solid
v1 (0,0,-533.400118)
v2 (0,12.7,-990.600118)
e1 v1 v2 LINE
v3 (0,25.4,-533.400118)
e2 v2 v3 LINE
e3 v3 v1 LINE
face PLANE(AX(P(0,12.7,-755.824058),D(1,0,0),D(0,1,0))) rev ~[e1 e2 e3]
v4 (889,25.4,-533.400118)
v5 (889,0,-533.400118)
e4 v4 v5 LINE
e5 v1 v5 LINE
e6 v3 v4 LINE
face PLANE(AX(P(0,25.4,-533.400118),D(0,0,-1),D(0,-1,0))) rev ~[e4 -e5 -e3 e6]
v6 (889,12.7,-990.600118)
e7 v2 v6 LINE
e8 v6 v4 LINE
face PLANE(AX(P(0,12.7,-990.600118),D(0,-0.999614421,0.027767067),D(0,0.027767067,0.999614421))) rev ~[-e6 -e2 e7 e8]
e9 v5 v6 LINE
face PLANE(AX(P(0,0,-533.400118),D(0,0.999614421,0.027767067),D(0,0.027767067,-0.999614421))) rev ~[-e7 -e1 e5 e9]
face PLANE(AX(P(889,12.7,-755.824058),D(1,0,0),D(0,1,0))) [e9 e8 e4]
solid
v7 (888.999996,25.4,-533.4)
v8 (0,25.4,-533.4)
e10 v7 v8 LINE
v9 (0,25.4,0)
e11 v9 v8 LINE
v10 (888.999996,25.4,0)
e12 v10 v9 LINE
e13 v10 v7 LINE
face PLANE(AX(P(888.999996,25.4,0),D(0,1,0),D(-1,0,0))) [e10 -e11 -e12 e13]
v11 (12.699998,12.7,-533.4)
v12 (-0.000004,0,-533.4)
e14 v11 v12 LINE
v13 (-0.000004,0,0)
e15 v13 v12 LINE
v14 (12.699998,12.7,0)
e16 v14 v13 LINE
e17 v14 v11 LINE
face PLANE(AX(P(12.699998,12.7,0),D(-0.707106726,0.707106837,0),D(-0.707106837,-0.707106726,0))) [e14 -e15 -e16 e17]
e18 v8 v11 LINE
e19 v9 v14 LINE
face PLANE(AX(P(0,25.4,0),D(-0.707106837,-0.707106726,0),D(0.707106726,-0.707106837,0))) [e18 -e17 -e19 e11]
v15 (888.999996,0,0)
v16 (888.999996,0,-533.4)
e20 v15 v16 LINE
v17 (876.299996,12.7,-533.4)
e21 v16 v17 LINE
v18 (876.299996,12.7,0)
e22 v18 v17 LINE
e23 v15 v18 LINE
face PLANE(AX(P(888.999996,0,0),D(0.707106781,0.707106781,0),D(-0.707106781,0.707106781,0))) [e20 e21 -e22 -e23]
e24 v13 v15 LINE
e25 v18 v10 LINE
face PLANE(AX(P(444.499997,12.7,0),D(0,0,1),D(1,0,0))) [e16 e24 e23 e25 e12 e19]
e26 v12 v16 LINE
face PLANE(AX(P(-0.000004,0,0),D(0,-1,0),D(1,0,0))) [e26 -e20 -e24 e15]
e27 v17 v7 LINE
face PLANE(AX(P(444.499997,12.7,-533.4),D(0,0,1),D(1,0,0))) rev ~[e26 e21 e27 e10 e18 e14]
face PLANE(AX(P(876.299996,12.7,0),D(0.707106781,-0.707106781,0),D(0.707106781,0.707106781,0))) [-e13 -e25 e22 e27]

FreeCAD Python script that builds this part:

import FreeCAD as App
import Part
import Sketcher

V = App.Vector
Q = App.Units.Quantity

doc = App.newDocument("Part")
body = doc.addObject("PartDesign::Body", "Body")

# Sketch on XY plane
sketch1 = doc.addObject("Sketcher::SketchObject", "Sketch")
body.addObject(sketch1)
sketch1.AttachmentSupport = (doc.XY_Plane, [""])
sketch1.MapMode = "FlatFace"
sketch1.addGeometry(Part.LineSegment(V(0, 25.4, 0), V(12.699998, 12.7, 0)), False)
sketch1.addGeometry(Part.LineSegment(V(12.699998, 12.7, 0), V(-0.000004, 0, 0)), False)
sketch1.addGeometry(Part.LineSegment(V(-0.000004, 0, 0), V(888.999996, 0, 0)), False)
sketch1.addGeometry(Part.LineSegment(V(888.999996, 0, 0), V(876.299996, 12.7, 0)), False)
sketch1.addGeometry(Part.LineSegment(V(876.299996, 12.7, 0), V(888.999996, 25.4, 0)), False)
sketch1.addGeometry(Part.LineSegment(V(888.999996, 25.4, 0), V(0, 25.4, 0)), False)
sketch1.addConstraint(Sketcher.Constraint("Coincident", 0, 2, 1, 1))
sketch1.addConstraint(Sketcher.Constraint("Coincident", 1, 2, 2, 1))
sketch1.addConstraint(Sketcher.Constraint("Coincident", 2, 2, 3, 1))
sketch1.addConstraint(Sketcher.Constraint("Coincident", 3, 2, 4, 1))
sketch1.addConstraint(Sketcher.Constraint("Coincident", 4, 2, 5, 1))
sketch1.addConstraint(Sketcher.Constraint("Coincident", 5, 2, 0, 1))
sketch1.addConstraint(Sketcher.Constraint("Horizontal", 2))
sketch1.addConstraint(Sketcher.Constraint("Horizontal", 5))
sketch1.addConstraint(Sketcher.Constraint("Coincident", 1, 2, -1, 1))
sketch1.addConstraint(Sketcher.Constraint("PointOnObject", 5, 2, -2))
sketch1.addConstraint(Sketcher.Constraint("Perpendicular", 0, 1))
sketch1.addConstraint(Sketcher.Constraint("Perpendicular", 1, 3))
sketch1.addConstraint(Sketcher.Constraint("Perpendicular", 3, 4))
sketch1.addConstraint(Sketcher.Constraint("Horizontal", 0, 2, 3, 2))
sketch1.addConstraint(Sketcher.Constraint("Vertical", 2, 2, 4, 2))
sketch1.addConstraint(Sketcher.Constraint("DistanceX", 2, 1, 2, 2, Q("35 in")))
sketch1.addConstraint(Sketcher.Constraint("DistanceY", -1, 1, 4, 2, Q("1 in")))
pad1 = doc.addObject("PartDesign::Pad", "Pad")
body.addObject(pad1)
pad1.Profile = sketch1
pad1.Length = Q("21 in")
pad1.Reversed = True
body2 = doc.addObject("PartDesign::Body", "Body001")

# Sketch on YZ plane
sketch2 = doc.addObject("Sketcher::SketchObject", "Sketch001")
body2.addObject(sketch2)
sketch2.AttachmentSupport = (doc.getObject("YZ_Plane001"), [""])
sketch2.MapMode = "FlatFace"
sketch2.addGeometry(Part.LineSegment(V(25.4, -533.400118, 0), V(0, -533.400118, 0)), False)
sketch2.addGeometry(Part.LineSegment(V(0, -533.400118, 0), V(12.7, -990.600118, 0)), False)
sketch2.addGeometry(Part.LineSegment(V(12.7, -990.600118, 0), V(25.4, -533.400118, 0)), False)
sketch2.addConstraint(Sketcher.Constraint("Coincident", 0, 2, 1, 1))
sketch2.addConstraint(Sketcher.Constraint("Coincident", 1, 2, 2, 1))
sketch2.addConstraint(Sketcher.Constraint("Coincident", 2, 2, 0, 1))
sketch2.addConstraint(Sketcher.Constraint("Horizontal", 0))
sketch2.addConstraint(Sketcher.Constraint("PointOnObject", 0, 2, -2))
sketch2.addConstraint(Sketcher.Constraint("Equal", 1, 2))
sketch2.addConstraint(Sketcher.Constraint("DistanceX", 0, 2, 0, 1, Q("1 in")))
sketch2.addConstraint(Sketcher.Constraint("DistanceY", 1, 2, 0, 2, Q("18 in")))
sketch2.addConstraint(Sketcher.Constraint("DistanceY", 0, 2, -1, 1, Q("533.400118 mm")))
pad2 = doc.addObject("PartDesign::Pad", "Pad001")
body2.addObject(pad2)
pad2.Profile = sketch2
pad2.Length = Q("35 in")

doc.recompute()
